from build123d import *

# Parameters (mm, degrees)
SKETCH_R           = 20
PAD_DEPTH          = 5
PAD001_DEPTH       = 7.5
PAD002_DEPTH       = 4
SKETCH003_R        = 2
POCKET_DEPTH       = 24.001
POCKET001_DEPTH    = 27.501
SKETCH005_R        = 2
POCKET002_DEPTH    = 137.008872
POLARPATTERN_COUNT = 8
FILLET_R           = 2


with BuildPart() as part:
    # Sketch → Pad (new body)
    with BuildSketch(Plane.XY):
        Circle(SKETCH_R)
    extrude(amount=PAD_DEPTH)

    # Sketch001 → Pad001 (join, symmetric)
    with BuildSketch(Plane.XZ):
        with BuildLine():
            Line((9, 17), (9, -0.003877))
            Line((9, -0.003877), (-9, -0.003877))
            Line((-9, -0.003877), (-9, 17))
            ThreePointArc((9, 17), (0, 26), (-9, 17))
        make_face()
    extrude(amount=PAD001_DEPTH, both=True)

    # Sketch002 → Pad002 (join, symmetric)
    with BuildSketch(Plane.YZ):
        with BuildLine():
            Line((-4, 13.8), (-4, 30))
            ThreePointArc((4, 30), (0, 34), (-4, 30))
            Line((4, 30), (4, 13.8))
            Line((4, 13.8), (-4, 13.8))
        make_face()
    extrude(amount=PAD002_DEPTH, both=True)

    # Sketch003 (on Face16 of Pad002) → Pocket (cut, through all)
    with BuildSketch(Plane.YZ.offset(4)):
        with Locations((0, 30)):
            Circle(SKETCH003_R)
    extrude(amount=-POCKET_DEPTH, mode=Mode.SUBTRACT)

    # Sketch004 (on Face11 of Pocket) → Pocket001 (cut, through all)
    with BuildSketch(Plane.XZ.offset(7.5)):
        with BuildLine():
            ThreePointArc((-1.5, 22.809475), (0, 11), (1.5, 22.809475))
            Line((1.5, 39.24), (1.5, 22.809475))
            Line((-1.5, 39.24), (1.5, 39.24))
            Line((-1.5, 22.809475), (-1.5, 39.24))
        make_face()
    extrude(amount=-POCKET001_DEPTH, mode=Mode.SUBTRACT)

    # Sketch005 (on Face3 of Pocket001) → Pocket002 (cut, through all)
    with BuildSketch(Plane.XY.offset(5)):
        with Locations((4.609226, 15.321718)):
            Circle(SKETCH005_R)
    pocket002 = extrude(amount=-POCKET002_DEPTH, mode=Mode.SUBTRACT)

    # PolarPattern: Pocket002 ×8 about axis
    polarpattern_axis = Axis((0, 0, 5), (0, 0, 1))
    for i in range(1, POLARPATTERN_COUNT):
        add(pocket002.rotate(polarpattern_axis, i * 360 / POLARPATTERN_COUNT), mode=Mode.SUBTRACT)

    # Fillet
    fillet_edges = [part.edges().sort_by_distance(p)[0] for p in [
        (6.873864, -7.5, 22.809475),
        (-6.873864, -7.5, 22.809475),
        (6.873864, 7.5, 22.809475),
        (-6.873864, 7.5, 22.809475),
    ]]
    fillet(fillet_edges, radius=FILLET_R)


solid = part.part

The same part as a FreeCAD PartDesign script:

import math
import FreeCAD as App
import Part
import Sketcher

V = App.Vector
Q = App.Units.Quantity


def edges_at(feature, points):
    """Names of the edges that pass closest to the given points."""
    edges = feature.Shape.Edges
    near = lambda p: min(range(len(edges)), key=lambda i: edges[i].distToShape(Part.Vertex(*p))[0])
    return sorted({f"Edge{near(p) + 1}" for p in points})

doc = App.newDocument("Part")
body = doc.addObject("PartDesign::Body", "Body")

# Sketch on XY plane
sketch1 = body.newObject("Sketcher::SketchObject", "Sketch")
sketch1.AttachmentSupport = (doc.getObject("XY_Plane"), [""])
sketch1.MapMode = "FlatFace"
sketch1.addGeometry(Part.Circle(V(0, 0, 0), V(0, 0, 1), 20), False)
sketch1.addConstraint(Sketcher.Constraint("Coincident", 0, 3, -1, 1))
sketch1.addConstraint(Sketcher.Constraint("Diameter", 0, Q("40 mm")))
pad1 = body.newObject("PartDesign::Pad", "Pad")
pad1.Profile = sketch1
pad1.Length = 5

# Sketch on XZ plane
sketch2 = body.newObject("Sketcher::SketchObject", "Sketch001")
sketch2.AttachmentSupport = (doc.getObject("XZ_Plane"), [""])
sketch2.MapMode = "FlatFace"
sketch2.addGeometry(Part.LineSegment(V(9, -0.003877, 0), V(9, 17, 0)), False)
sketch2.addGeometry(Part.ArcOfCircle(Part.Circle(V(0, 17, 0), V(0, 0, 1), 9), math.radians(0), math.radians(180)), False)
sketch2.addGeometry(Part.LineSegment(V(-9, 17, 0), V(-9, -0.003877, 0)), False)
sketch2.addGeometry(Part.LineSegment(V(-9, -0.003877, 0), V(9, -0.003877, 0)), False)
sketch2.addConstraint(Sketcher.Constraint("Tangent", 0, 2, 1, 1))
sketch2.addConstraint(Sketcher.Constraint("Tangent", 1, 2, 2, 1))
sketch2.addConstraint(Sketcher.Constraint("Coincident", 2, 2, 3, 1))
sketch2.addConstraint(Sketcher.Constraint("Coincident", 3, 2, 0, 1))
sketch2.addConstraint(Sketcher.Constraint("Vertical", 0))
sketch2.addConstraint(Sketcher.Constraint("Vertical", 2))
sketch2.addConstraint(Sketcher.Constraint("Horizontal", 3))
sketch2.addConstraint(Sketcher.Constraint("PointOnObject", 1, 3, -2))
sketch2.addConstraint(Sketcher.Constraint("Radius", 1, Q("9 mm")))
sketch2.addConstraint(Sketcher.Constraint("DistanceY", -1, 1, 1, 3, Q("17 mm")))
sketch2.addConstraint(Sketcher.Constraint("DistanceY", 0, 1, 0, 2, Q("17.003877 mm")))
pad2 = body.newObject("PartDesign::Pad", "Pad001")
pad2.Profile = sketch2
pad2.Length = 15
pad2.Midplane = True

# Sketch on YZ plane
sketch3 = body.newObject("Sketcher::SketchObject", "Sketch002")
sketch3.AttachmentSupport = (doc.getObject("YZ_Plane"), [""])
sketch3.MapMode = "FlatFace"
sketch3.addGeometry(Part.LineSegment(V(-4, 30, 0), V(-4, 13.8, 0)), False)
sketch3.addGeometry(Part.LineSegment(V(-4, 13.8, 0), V(4, 13.8, 0)), False)
sketch3.addGeometry(Part.LineSegment(V(4, 13.8, 0), V(4, 30, 0)), False)
sketch3.addGeometry(Part.ArcOfCircle(Part.Circle(V(0, 30, 0), V(0, 0, 1), 4), math.radians(0), math.radians(180)), False)
sketch3.addConstraint(Sketcher.Constraint("Coincident", 0, 2, 1, 1))
sketch3.addConstraint(Sketcher.Constraint("Coincident", 1, 2, 2, 1))
sketch3.addConstraint(Sketcher.Constraint("Tangent", 2, 2, 3, 1))
sketch3.addConstraint(Sketcher.Constraint("Tangent", 3, 2, 0, 1))
sketch3.addConstraint(Sketcher.Constraint("Vertical", 0))
sketch3.addConstraint(Sketcher.Constraint("Horizontal", 1))
sketch3.addConstraint(Sketcher.Constraint("Vertical", 2))
sketch3.addConstraint(Sketcher.Constraint("PointOnObject", 3, 3, -2))
sketch3.addConstraint(Sketcher.Constraint("Radius", 3, Q("4 mm")))
sketch3.addConstraint(Sketcher.Constraint("DistanceY", 0, 2, 0, 1, Q("16.2 mm")))
sketch3.addConstraint(Sketcher.Constraint("DistanceY", -1, 1, 3, 3, Q("30 mm")))
pad3 = body.newObject("PartDesign::Pad", "Pad002")
pad3.Profile = sketch3
pad3.Length = 8
pad3.Midplane = True

# Sketch on YZ plane
sketch4 = body.newObject("Sketcher::SketchObject", "Sketch003")
sketch4.AttachmentSupport = (doc.getObject("YZ_Plane"), [""])
sketch4.MapMode = "FlatFace"
sketch4.AttachmentOffset = App.Placement(V(0, 0, 4), App.Rotation())
sketch4.addGeometry(Part.Circle(V(0, 30, 0), V(0, 0, 1), 2), False)
sketch4.addConstraint(Sketcher.Constraint("PointOnObject", 0, 3, -2))
sketch4.addConstraint(Sketcher.Constraint("Diameter", 0, Q("4 mm")))
sketch4.addConstraint(Sketcher.Constraint("DistanceY", -1, 1, 0, 3, Q("30 mm")))
pocket1 = body.newObject("PartDesign::Pocket", "Pocket")
pocket1.Profile = sketch4
pocket1.Type = "ThroughAll"

# Sketch on XZ plane
sketch5 = body.newObject("Sketcher::SketchObject", "Sketch004")
sketch5.AttachmentSupport = (doc.getObject("XZ_Plane"), [""])
sketch5.MapMode = "FlatFace"
sketch5.AttachmentOffset = App.Placement(V(0, 0, 7.5), App.Rotation())
sketch5.addGeometry(Part.ArcOfCircle(Part.Circle(V(0, 17, 0), V(0, 0, 1), 6), math.radians(104.477512), math.radians(435.522488)), False)
sketch5.addGeometry(Part.LineSegment(V(1.5, 22.809475, 0), V(1.5, 39.24, 0)), False)
sketch5.addGeometry(Part.LineSegment(V(1.5, 39.24, 0), V(-1.5, 39.24, 0)), False)
sketch5.addGeometry(Part.LineSegment(V(-1.5, 39.24, 0), V(-1.5, 22.809475, 0)), False)
sketch5.addConstraint(Sketcher.Constraint("Coincident", 0, 2, 1, 1))
sketch5.addConstraint(Sketcher.Constraint("Coincident", 1, 2, 2, 1))
sketch5.addConstraint(Sketcher.Constraint("Coincident", 2, 2, 3, 1))
sketch5.addConstraint(Sketcher.Constraint("Coincident", 3, 2, 0, 1))
sketch5.addConstraint(Sketcher.Constraint("Vertical", 1))
sketch5.addConstraint(Sketcher.Constraint("Horizontal", 2))
sketch5.addConstraint(Sketcher.Constraint("Vertical", 3))
sketch5.addConstraint(Sketcher.Constraint("Symmetric", 0, 2, 3, 2, -2))
sketch5.addConstraint(Sketcher.Constraint("Radius", 0, Q("6 mm")))
sketch5.addConstraint(Sketcher.Constraint("DistanceX", 2, 2, 2, 1, Q("3 mm")))
sketch5.addConstraint(Sketcher.Constraint("DistanceY", -1, 1, 0, 3, Q("17 mm")))
sketch5.addConstraint(Sketcher.Constraint("DistanceY", -1, 1, 1, 2, Q("39.24 mm")))
pocket2 = body.newObject("PartDesign::Pocket", "Pocket001")
pocket2.Profile = sketch5
pocket2.Type = "ThroughAll"

# Sketch on XY plane
sketch6 = body.newObject("Sketcher::SketchObject", "Sketch005")
sketch6.AttachmentSupport = (doc.getObject("XY_Plane"), [""])
sketch6.MapMode = "FlatFace"
sketch6.AttachmentOffset = App.Placement(V(0, 0, 5), App.Rotation())
sketch6.addGeometry(Part.Circle(V(4.609226, 15.321718, 0), V(0, 0, 1), 2), False)
sketch6.addConstraint(Sketcher.Constraint("Diameter", 0, Q("4 mm")))
sketch6.addConstraint(Sketcher.Constraint("DistanceY", -1, 1, 0, 3, Q("15.321718 mm")))
sketch6.addConstraint(Sketcher.Constraint("DistanceX", -1, 1, 0, 3, Q("4.609226 mm")))
pocket3 = body.newObject("PartDesign::Pocket", "Pocket002")
pocket3.Profile = sketch6
pocket3.Type = "ThroughAll"
doc.recompute()

polarpattern = body.newObject("PartDesign::PolarPattern", "PolarPattern")
polarpattern.Originals = [pocket3]
polarpattern.Axis = (doc.getObject("Z_Axis"), [""])
polarpattern.Angle = 360
polarpattern.Occurrences = 8
body.Tip = polarpattern
doc.recompute()

fillet = body.newObject("PartDesign::Fillet", "Fillet")
fillet.Base = (polarpattern, edges_at(polarpattern, [
    (6.874, -7.5, 22.809),
    (-6.874, -7.5, 22.809),
    (6.874, 7.5, 22.809),
    (-6.874, 7.5, 22.809),
]))
fillet.Radius = 2

doc.recompute()
